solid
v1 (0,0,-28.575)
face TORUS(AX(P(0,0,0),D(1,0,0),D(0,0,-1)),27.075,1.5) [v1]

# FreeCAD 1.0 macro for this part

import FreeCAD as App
import Part
import Sketcher
Q = App.Units.Quantity

doc = App.newDocument("Part")
body = doc.addObject("PartDesign::Body", "Body")

sketch1 = body.newObject("Sketcher::SketchObject", "Sketch")
sketch1.AttachmentSupport = (doc.getObject("XY_Plane"), [""])
sketch1.MapMode = "FlatFace"
sketch1.addGeometry(Part.Circle(App.Vector(0, 27.075, 0), App.Vector(0, 0, 1), 1.5), False)
sketch1.addConstraint([
    Sketcher.Constraint("PointOnObject", 0, 3, -2),
    Sketcher.Constraint("Diameter", 0, Q("3 mm")),
    Sketcher.Constraint("DistanceY", -1, 1, 0, 3, Q("27.075 mm")),
])
revolution = body.newObject("PartDesign::Revolution", "Revolution")
revolution.Profile = sketch1
revolution.ReferenceAxis = (sketch1, ["H_Axis"])
revolution.Angle = 360

doc.recompute()
